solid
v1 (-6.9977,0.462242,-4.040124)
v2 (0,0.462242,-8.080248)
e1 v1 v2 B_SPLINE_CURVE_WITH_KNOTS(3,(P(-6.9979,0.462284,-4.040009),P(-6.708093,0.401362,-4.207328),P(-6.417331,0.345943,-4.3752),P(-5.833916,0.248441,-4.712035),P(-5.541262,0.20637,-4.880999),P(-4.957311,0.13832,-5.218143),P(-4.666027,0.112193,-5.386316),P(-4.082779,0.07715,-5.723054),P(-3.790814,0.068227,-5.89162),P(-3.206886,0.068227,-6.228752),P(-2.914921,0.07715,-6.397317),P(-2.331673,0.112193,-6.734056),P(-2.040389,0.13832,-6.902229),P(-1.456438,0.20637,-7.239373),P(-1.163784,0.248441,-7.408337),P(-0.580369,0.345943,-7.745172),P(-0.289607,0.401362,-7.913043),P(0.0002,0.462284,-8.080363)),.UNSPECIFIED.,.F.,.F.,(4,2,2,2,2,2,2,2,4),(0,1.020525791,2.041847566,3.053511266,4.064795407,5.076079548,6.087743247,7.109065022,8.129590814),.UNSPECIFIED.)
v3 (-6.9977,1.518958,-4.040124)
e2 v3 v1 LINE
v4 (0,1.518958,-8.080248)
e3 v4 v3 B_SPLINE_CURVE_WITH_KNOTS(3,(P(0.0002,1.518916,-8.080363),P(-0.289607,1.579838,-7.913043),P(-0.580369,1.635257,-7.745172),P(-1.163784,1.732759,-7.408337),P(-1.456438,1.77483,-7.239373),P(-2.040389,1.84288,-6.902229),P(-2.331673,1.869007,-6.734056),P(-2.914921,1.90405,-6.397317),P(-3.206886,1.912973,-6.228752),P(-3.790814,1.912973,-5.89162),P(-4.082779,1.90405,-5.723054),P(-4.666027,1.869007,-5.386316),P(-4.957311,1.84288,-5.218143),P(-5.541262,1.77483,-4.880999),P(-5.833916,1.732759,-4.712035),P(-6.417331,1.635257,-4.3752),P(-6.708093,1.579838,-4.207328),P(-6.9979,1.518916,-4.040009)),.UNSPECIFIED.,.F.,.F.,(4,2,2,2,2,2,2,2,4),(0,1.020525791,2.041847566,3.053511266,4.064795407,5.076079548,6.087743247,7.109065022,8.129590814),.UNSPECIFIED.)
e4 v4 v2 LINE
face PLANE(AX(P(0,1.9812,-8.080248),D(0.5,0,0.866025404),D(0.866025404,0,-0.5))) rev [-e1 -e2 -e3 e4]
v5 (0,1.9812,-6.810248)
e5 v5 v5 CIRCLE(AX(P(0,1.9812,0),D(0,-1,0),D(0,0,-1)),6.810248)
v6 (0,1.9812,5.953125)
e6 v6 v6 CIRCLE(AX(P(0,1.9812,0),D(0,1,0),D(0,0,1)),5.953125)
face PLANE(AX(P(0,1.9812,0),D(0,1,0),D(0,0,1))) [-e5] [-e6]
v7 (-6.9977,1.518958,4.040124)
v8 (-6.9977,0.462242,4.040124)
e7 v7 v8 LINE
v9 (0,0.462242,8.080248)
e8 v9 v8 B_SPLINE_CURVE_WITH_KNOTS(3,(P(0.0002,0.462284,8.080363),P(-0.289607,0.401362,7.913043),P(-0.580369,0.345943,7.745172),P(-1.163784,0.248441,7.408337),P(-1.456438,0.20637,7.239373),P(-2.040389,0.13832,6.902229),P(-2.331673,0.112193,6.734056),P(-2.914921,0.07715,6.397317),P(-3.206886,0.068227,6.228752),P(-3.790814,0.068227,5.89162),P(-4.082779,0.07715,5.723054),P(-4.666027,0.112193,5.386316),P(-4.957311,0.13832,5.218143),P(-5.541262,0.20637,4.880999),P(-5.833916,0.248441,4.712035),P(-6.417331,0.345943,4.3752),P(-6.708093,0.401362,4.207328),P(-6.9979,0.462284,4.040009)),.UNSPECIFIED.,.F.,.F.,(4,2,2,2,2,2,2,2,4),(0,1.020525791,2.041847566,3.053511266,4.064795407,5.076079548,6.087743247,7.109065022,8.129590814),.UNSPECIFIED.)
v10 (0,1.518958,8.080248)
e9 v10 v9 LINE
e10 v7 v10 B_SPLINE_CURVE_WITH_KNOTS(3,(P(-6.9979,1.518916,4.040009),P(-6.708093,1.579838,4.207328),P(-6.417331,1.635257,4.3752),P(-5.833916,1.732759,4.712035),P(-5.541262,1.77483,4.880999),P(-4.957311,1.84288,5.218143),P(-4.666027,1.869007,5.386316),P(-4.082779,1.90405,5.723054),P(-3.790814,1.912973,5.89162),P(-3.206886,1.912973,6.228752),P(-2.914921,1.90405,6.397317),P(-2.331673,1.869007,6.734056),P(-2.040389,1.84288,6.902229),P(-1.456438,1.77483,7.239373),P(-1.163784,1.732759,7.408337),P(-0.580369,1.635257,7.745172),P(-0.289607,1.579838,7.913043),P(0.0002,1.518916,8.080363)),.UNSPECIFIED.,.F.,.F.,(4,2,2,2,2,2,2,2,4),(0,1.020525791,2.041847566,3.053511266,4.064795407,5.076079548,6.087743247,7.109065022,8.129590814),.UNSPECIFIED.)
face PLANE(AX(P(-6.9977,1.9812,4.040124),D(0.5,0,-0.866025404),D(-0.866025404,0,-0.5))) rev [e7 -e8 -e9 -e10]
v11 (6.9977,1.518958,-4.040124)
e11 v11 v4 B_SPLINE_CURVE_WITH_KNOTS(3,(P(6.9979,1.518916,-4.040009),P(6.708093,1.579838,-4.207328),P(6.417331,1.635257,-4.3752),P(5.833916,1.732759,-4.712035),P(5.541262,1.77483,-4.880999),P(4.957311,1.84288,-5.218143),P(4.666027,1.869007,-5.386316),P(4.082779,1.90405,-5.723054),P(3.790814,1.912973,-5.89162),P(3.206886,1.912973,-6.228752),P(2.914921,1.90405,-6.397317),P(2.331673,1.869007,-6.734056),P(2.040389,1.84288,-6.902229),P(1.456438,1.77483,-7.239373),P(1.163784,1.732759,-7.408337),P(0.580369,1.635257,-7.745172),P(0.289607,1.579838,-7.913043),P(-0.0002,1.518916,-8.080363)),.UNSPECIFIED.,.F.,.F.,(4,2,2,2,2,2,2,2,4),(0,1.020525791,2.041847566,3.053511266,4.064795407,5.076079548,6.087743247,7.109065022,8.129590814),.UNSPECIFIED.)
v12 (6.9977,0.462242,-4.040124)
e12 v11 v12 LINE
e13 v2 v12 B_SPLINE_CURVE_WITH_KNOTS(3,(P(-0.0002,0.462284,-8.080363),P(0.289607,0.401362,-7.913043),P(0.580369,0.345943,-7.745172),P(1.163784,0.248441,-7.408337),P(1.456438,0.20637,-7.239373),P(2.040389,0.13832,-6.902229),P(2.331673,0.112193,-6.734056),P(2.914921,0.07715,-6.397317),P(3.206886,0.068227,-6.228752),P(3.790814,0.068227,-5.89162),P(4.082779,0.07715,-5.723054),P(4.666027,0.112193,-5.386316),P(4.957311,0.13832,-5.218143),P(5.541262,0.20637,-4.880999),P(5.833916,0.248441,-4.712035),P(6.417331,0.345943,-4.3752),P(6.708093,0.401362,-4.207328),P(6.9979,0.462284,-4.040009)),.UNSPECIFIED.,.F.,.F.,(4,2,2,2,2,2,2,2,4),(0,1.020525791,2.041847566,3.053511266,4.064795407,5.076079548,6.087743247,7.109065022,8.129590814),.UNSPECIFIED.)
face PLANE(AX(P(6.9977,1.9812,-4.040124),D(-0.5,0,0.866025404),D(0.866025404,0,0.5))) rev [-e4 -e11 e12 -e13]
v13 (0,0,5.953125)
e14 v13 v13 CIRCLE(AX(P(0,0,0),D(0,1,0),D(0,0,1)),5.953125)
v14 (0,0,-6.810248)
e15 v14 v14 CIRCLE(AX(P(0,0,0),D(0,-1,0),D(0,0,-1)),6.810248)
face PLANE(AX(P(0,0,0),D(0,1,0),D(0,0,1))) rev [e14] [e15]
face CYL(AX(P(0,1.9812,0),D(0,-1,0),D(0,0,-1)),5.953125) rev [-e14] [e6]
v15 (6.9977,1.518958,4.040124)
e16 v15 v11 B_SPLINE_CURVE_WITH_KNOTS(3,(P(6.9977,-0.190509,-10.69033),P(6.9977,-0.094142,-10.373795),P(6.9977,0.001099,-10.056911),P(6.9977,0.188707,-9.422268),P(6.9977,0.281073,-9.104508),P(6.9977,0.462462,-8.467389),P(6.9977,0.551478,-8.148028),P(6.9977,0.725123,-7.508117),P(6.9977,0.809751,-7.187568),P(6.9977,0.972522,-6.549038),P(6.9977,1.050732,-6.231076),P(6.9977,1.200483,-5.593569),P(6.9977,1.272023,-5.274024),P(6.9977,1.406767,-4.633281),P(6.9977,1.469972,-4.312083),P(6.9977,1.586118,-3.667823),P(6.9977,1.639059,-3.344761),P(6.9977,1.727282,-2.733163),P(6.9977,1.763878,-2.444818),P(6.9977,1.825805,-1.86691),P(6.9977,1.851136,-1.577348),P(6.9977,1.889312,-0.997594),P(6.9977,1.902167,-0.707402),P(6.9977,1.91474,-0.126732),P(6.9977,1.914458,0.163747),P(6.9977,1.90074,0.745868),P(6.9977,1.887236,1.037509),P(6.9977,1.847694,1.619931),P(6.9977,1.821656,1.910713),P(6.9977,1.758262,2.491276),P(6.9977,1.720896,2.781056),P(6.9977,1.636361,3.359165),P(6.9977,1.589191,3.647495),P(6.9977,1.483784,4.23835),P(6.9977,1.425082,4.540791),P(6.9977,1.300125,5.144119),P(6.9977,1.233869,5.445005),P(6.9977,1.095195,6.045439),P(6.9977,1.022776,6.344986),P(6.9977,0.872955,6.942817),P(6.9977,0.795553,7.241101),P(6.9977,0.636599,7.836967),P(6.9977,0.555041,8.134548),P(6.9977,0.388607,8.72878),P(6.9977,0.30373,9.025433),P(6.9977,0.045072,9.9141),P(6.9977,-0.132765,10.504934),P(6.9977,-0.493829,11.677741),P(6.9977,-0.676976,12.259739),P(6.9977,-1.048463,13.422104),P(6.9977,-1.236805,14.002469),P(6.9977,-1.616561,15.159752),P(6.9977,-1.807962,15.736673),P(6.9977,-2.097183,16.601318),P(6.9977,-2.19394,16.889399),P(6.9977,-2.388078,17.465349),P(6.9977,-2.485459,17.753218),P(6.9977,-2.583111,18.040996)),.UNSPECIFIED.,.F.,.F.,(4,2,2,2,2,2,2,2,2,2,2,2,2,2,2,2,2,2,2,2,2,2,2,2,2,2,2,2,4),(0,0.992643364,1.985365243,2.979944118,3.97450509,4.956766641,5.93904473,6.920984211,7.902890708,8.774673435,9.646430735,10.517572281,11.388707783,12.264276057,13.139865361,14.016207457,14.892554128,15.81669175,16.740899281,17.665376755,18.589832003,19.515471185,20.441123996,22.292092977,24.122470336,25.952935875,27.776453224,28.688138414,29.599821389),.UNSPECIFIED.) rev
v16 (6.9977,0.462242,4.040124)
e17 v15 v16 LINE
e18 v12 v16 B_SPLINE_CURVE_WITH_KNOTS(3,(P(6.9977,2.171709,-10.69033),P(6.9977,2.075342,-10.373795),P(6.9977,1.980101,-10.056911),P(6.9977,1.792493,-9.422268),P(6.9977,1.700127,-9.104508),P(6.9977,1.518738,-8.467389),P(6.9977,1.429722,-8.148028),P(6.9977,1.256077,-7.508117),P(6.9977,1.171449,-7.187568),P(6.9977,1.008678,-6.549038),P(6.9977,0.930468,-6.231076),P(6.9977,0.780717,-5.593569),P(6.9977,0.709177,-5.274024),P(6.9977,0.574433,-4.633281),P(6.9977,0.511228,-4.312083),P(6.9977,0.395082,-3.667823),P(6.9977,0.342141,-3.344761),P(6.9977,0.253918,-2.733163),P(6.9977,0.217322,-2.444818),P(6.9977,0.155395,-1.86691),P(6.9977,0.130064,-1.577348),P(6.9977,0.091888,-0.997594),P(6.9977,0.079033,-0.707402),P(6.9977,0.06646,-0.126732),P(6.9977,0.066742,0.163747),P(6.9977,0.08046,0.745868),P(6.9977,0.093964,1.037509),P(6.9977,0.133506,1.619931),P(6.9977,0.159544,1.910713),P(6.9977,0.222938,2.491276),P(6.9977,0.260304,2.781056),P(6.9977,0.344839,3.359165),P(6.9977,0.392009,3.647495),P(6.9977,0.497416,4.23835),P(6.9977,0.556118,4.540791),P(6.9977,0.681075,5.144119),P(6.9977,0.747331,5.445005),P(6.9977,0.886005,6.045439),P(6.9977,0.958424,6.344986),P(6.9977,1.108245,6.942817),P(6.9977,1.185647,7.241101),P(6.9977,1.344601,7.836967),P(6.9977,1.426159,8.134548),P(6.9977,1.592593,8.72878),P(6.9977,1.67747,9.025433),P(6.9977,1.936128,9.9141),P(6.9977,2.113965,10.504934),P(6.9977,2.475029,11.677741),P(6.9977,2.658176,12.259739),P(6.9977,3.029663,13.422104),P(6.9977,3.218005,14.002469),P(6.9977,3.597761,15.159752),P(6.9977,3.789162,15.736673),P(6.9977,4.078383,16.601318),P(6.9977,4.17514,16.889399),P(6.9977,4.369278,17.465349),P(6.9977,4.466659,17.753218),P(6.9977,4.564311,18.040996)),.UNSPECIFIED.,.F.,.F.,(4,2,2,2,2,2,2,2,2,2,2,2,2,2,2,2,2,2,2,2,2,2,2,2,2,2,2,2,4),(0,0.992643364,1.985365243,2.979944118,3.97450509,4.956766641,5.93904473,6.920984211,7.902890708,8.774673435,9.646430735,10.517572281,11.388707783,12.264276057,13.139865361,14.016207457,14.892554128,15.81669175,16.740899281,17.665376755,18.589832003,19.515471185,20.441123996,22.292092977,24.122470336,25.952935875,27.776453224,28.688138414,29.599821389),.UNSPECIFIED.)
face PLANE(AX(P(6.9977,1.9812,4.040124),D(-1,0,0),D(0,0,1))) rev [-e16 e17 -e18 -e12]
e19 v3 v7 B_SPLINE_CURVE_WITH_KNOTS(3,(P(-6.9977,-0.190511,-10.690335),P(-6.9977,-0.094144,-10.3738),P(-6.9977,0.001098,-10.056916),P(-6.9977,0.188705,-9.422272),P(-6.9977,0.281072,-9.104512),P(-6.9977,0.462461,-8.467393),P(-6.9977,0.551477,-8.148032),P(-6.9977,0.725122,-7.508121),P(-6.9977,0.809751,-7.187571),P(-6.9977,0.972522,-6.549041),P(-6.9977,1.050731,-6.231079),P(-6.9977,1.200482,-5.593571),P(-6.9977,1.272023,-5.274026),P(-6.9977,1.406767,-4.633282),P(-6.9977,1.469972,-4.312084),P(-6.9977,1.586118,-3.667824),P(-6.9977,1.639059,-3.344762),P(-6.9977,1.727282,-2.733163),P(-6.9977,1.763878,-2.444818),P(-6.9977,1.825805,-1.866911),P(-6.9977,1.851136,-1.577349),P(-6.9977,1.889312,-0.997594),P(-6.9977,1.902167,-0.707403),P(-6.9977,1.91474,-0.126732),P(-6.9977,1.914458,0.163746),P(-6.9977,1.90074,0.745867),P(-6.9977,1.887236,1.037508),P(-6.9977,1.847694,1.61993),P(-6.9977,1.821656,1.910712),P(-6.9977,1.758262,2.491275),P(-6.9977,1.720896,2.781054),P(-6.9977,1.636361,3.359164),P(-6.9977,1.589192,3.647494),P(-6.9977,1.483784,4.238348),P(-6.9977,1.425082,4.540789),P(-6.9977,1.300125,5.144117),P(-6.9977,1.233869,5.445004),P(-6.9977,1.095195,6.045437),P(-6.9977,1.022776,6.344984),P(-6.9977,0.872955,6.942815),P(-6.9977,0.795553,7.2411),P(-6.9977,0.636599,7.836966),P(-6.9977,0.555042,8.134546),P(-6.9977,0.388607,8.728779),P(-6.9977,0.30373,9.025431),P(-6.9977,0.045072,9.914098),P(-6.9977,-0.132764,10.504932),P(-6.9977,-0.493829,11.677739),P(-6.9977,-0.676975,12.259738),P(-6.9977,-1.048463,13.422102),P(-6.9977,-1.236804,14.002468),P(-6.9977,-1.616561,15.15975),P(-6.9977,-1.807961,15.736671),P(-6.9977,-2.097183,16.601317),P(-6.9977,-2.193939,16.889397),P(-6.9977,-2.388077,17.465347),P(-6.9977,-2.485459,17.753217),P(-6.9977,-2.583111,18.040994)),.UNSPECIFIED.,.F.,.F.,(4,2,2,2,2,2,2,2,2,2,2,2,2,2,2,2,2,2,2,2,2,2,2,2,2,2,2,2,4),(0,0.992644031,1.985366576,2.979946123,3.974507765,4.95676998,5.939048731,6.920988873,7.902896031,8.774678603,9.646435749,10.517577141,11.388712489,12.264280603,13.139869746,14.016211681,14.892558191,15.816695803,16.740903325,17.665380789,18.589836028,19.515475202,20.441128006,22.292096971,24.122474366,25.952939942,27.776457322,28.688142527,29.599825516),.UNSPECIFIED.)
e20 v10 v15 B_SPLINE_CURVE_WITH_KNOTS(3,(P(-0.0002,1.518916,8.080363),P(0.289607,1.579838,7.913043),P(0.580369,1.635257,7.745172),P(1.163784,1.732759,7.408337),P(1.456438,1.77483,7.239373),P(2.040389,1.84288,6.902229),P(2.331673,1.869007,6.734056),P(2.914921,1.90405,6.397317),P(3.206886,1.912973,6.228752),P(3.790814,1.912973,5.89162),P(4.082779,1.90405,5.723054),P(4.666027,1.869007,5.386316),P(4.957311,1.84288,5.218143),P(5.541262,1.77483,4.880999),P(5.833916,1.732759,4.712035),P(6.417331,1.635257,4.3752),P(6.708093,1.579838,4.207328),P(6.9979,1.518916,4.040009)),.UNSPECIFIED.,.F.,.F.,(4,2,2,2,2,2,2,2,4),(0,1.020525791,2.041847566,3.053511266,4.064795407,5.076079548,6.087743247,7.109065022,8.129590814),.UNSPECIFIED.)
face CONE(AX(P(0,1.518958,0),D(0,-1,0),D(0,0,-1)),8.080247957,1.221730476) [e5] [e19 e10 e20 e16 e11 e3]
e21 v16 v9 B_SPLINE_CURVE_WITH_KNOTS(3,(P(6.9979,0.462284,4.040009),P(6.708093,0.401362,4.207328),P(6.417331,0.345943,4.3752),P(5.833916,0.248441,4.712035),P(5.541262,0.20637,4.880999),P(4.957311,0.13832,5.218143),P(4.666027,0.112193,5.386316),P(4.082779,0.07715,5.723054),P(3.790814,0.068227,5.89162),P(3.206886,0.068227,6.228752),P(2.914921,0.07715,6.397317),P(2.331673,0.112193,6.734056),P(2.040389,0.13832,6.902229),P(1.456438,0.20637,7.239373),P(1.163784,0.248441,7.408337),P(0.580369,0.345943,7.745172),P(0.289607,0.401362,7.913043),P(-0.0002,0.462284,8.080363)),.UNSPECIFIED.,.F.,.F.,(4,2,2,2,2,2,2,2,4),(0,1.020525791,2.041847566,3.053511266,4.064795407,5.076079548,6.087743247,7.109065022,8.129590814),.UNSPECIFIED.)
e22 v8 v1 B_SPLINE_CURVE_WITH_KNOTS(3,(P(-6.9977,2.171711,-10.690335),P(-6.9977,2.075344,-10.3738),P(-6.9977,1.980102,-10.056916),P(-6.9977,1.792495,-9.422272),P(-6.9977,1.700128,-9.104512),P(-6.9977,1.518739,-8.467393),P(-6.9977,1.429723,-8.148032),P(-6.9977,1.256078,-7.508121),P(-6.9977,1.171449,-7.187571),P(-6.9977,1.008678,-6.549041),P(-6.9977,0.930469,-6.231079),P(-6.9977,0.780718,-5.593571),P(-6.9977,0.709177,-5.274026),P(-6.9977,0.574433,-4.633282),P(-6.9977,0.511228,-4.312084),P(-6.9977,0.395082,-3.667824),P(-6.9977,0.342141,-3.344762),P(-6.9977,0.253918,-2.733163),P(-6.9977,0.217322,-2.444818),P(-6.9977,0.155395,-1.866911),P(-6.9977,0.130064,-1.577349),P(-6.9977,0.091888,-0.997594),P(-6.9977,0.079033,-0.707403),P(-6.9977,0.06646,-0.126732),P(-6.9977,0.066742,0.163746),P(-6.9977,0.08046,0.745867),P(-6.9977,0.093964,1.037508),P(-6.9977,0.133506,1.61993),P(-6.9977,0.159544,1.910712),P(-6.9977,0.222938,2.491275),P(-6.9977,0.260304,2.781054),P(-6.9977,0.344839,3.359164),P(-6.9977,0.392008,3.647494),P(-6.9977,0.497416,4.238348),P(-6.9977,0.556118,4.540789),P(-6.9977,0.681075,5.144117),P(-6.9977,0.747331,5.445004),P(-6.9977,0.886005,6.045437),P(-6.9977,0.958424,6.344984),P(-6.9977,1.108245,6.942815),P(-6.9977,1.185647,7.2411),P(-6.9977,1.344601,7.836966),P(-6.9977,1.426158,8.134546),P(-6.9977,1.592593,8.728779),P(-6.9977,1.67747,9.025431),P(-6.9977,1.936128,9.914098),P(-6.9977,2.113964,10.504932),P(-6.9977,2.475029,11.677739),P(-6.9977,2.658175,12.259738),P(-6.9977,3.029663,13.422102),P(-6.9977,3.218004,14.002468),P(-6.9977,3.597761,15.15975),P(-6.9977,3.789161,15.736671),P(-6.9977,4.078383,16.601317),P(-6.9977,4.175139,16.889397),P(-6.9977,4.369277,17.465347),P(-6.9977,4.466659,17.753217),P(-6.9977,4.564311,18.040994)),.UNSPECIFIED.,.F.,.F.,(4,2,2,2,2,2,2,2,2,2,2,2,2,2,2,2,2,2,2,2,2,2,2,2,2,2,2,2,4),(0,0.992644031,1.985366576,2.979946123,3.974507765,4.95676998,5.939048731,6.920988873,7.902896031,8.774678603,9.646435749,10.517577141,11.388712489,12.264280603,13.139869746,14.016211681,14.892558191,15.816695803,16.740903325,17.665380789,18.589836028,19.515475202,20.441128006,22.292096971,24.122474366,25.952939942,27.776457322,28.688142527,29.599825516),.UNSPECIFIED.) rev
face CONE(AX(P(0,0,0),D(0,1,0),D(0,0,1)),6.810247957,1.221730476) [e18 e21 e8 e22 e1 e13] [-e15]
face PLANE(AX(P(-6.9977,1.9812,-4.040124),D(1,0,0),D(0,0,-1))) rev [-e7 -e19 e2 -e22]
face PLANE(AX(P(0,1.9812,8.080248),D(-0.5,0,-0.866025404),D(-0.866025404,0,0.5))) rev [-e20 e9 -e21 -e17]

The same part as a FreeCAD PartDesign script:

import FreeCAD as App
import Part
import Sketcher
from FreeCAD import Vector
Q = App.Units.Quantity


def add_polygon(sketch, points):
    """Adds a closed chain of lines whose ends are joined by coincident constraints."""
    first, n = sketch.GeometryCount, len(points)
    for a, b in zip(points, points[1:] + points[:1]):
        sketch.addGeometry(Part.LineSegment(App.Vector(*a, 0), App.Vector(*b, 0)), False)
    for i in range(n):
        sketch.addConstraint(Sketcher.Constraint("Coincident", first + i, 2, first + (i + 1) % n, 1))

doc = App.newDocument("Part")
body = doc.addObject("PartDesign::Body", "Body")

# Sketch on XZ plane
sketch1 = doc.addObject("Sketcher::SketchObject", "Sketch")
body.addObject(sketch1)
sketch1.AttachmentSupport = (doc.XZ_Plane, [""])
sketch1.MapMode = "FlatFace"
add_polygon(sketch1, [(0, 8), (7, 4), (7, -4), (0, -8), (-7, -4), (-7, 4)])  # lines 0-5
sketch1.addGeometry(Part.Circle(Vector(0, 0, 0), Vector(0, 0, 1), 6), False)  # 6
sketch1.addConstraint([
    Sketcher.Constraint("Vertical", 1),
    Sketcher.Constraint("Vertical", 4),
    Sketcher.Constraint("Coincident", 6, 3, -1, 1),
    Sketcher.Constraint("Symmetric", 0, 2, 3, 2, -1, 1),
    Sketcher.Constraint("Symmetric", 2, 2, 5, 2, -1, 1),
    Sketcher.Constraint("PointOnObject", 2, 2, -2),
    Sketcher.Constraint("Parallel", 2, 5),
    Sketcher.Constraint("Horizontal", 1, 2, 3, 2),
    Sketcher.Constraint("Diameter", 6, Q("0.46875 in")),
    Sketcher.Constraint("Angle", 0, Q("-30 deg")),
    Sketcher.Constraint("DistanceX", 3, 2, 1, 2, Q("0.551 in")),
    Sketcher.Constraint("DistanceY", 1, 2, 1, 1, 8.080248),
])
pad1 = doc.addObject("PartDesign::Pad", "Pad")
body.addObject(pad1)
pad1.Profile = sketch1
pad1.Length = Q("0.078 in")
pad1.Reversed = True

# Sketch on YZ plane
sketch2 = doc.addObject("Sketcher::SketchObject", "Sketch001")
body.addObject(sketch2)
sketch2.AttachmentSupport = (doc.YZ_Plane, [""])
sketch2.MapMode = "FlatFace"
add_polygon(sketch2, [(1.52, 8.08), (1.98, 6.81), (1.98, 8.08)])  # lines 0-2
add_polygon(sketch2, [(0.46, 8.08), (0, 8.08), (0, 6.81)])  # lines 3-5
sketch2.addConstraint([
    Sketcher.Constraint("Vertical", 1),
    Sketcher.Constraint("Horizontal", 2),
    Sketcher.Constraint("Horizontal", 3),
    Sketcher.Constraint("Vertical", 4),
    Sketcher.Constraint("PointOnObject", 3, 2, -2),
    Sketcher.Constraint("Horizontal", 2, 2, 3, 2),
    Sketcher.Constraint("Horizontal", 0, 2, 4, 2),
    Sketcher.Constraint("Equal", 2, 3),
    Sketcher.Constraint("Angle", 0, Q("-70 deg")),
    Sketcher.Constraint("DistanceY", 1, 1, 1, 2, Q("0.05 in")),
    Sketcher.Constraint("DistanceX", -1, 1, 0, 2, Q("0.078 in")),
    Sketcher.Constraint("DistanceY", -1, 1, 0, 2, 6.810248),
])
groove = doc.addObject("PartDesign::Groove", "Groove")
body.addObject(groove)
groove.Profile = sketch2
groove.ReferenceAxis = (sketch2, ["H_Axis"])
groove.Angle = 360

doc.recompute()
